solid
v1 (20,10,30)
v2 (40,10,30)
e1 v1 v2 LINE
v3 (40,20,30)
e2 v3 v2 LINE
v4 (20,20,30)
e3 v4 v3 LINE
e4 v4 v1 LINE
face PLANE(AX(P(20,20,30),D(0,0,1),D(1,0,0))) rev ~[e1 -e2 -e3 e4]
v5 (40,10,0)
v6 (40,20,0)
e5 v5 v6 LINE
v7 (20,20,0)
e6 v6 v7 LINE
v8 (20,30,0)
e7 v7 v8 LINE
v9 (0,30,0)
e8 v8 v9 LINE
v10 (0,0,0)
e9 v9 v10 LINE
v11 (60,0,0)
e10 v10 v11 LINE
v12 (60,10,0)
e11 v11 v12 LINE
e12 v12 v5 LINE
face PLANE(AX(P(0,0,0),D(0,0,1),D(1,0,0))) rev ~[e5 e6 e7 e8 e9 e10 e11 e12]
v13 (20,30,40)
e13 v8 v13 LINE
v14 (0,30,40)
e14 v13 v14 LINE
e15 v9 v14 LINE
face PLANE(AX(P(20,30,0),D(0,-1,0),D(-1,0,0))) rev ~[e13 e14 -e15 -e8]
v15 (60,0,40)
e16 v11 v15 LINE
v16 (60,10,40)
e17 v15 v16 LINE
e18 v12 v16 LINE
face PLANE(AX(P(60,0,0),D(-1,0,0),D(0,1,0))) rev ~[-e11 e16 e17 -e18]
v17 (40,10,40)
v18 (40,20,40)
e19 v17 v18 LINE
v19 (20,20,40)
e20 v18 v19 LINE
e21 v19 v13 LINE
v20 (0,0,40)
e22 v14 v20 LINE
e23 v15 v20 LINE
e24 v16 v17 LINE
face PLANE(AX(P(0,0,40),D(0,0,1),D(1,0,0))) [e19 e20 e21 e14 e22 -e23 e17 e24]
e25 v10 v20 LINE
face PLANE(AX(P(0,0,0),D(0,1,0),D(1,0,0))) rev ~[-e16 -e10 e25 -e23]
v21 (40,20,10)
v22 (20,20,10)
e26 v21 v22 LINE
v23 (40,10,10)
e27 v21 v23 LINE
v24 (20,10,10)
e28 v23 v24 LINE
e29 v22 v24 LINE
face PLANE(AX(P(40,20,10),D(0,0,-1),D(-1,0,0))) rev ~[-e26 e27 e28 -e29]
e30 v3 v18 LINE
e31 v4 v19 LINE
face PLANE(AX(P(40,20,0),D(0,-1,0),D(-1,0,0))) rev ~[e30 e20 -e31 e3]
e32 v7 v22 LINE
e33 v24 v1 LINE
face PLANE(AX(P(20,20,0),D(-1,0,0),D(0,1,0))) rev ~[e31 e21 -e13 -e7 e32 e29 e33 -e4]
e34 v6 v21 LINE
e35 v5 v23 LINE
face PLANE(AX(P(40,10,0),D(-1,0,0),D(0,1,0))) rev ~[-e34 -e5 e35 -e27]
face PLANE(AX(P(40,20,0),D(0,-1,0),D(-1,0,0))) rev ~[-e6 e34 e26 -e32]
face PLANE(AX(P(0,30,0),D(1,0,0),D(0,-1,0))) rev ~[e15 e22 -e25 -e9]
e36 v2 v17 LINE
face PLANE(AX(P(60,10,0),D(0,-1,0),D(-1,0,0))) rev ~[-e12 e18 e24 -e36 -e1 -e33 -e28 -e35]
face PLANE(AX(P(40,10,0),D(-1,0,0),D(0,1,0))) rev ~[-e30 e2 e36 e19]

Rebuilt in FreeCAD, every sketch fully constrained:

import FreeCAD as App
import Part
import Sketcher
from FreeCAD import Vector
Q = App.Units.Quantity


def add_polygon(sketch, points):
    """Adds a closed chain of lines whose ends are joined by coincident constraints."""
    first, n = sketch.GeometryCount, len(points)
    for a, b in zip(points, points[1:] + points[:1]):
        sketch.addGeometry(Part.LineSegment(App.Vector(*a, 0), App.Vector(*b, 0)), False)
    for i in range(n):
        sketch.addConstraint(Sketcher.Constraint("Coincident", first + i, 2, first + (i + 1) % n, 1))

doc = App.newDocument("Part")
body = doc.addObject("PartDesign::Body", "Body")

# Sketch on XY plane
sketch1 = body.newObject("Sketcher::SketchObject", "Sketch")
sketch1.AttachmentSupport = (doc.getObject("XY_Plane"), [""])
sketch1.MapMode = "FlatFace"
add_polygon(sketch1, [(0, 30), (0, 0), (60, 0), (60, 10), (40, 10), (40, 20), (20, 20), (20, 30)])  # lines 0-7
sketch1.addConstraint([
    Sketcher.Constraint("Vertical", 0),
    Sketcher.Constraint("Horizontal", 1),
    Sketcher.Constraint("Vertical", 2),
    Sketcher.Constraint("Horizontal", 3),
    Sketcher.Constraint("Vertical", 4),
    Sketcher.Constraint("Horizontal", 5),
    Sketcher.Constraint("Vertical", 6),
    Sketcher.Constraint("Horizontal", 7),
    Sketcher.Constraint("Coincident", 0, 2, -1, 1),
    Sketcher.Constraint("Equal", 3, 5),
    Sketcher.Constraint("Equal", 5, 7),
    Sketcher.Constraint("Equal", 2, 4),
    Sketcher.Constraint("Equal", 4, 6),
    Sketcher.Constraint("DistanceX", 1, 1, 1, 2, Q("60 mm")),
    Sketcher.Constraint("DistanceY", 0, 2, 0, 1, Q("30 mm")),
])
pad1 = body.newObject("PartDesign::Pad", "Pad")
pad1.Profile = sketch1
pad1.Length = 40

# Sketch on XZ plane
sketch2 = body.newObject("Sketcher::SketchObject", "Sketch001")
sketch2.AttachmentSupport = (doc.getObject("XZ_Plane"), [""])
sketch2.MapMode = "FlatFace"
sketch2.AttachmentOffset = App.Placement(Vector(0, 0, -20), App.Rotation())
add_polygon(sketch2, [(20, 10), (20, 30), (40, 30), (40, 10)])  # lines 0-3
sketch2.addConstraint([
    Sketcher.Constraint("Vertical", 0),
    Sketcher.Constraint("Horizontal", 1),
    Sketcher.Constraint("Vertical", 2),
    Sketcher.Constraint("Horizontal", 3),
    Sketcher.Constraint("Equal", 3, 0),
    Sketcher.Constraint("DistanceY", -1, 1, 2, 2, Q("10 mm")),
    Sketcher.Constraint("DistanceX", 1, 1, 1, 2, Q("20 mm")),
    Sketcher.Constraint("DistanceX", -1, 1, 0, 2, Q("20 mm")),
])
pocket1 = body.newObject("PartDesign::Pocket", "Pocket")
pocket1.Profile = sketch2
pocket1.Length = 10
pocket1.Reversed = True

doc.recompute()
